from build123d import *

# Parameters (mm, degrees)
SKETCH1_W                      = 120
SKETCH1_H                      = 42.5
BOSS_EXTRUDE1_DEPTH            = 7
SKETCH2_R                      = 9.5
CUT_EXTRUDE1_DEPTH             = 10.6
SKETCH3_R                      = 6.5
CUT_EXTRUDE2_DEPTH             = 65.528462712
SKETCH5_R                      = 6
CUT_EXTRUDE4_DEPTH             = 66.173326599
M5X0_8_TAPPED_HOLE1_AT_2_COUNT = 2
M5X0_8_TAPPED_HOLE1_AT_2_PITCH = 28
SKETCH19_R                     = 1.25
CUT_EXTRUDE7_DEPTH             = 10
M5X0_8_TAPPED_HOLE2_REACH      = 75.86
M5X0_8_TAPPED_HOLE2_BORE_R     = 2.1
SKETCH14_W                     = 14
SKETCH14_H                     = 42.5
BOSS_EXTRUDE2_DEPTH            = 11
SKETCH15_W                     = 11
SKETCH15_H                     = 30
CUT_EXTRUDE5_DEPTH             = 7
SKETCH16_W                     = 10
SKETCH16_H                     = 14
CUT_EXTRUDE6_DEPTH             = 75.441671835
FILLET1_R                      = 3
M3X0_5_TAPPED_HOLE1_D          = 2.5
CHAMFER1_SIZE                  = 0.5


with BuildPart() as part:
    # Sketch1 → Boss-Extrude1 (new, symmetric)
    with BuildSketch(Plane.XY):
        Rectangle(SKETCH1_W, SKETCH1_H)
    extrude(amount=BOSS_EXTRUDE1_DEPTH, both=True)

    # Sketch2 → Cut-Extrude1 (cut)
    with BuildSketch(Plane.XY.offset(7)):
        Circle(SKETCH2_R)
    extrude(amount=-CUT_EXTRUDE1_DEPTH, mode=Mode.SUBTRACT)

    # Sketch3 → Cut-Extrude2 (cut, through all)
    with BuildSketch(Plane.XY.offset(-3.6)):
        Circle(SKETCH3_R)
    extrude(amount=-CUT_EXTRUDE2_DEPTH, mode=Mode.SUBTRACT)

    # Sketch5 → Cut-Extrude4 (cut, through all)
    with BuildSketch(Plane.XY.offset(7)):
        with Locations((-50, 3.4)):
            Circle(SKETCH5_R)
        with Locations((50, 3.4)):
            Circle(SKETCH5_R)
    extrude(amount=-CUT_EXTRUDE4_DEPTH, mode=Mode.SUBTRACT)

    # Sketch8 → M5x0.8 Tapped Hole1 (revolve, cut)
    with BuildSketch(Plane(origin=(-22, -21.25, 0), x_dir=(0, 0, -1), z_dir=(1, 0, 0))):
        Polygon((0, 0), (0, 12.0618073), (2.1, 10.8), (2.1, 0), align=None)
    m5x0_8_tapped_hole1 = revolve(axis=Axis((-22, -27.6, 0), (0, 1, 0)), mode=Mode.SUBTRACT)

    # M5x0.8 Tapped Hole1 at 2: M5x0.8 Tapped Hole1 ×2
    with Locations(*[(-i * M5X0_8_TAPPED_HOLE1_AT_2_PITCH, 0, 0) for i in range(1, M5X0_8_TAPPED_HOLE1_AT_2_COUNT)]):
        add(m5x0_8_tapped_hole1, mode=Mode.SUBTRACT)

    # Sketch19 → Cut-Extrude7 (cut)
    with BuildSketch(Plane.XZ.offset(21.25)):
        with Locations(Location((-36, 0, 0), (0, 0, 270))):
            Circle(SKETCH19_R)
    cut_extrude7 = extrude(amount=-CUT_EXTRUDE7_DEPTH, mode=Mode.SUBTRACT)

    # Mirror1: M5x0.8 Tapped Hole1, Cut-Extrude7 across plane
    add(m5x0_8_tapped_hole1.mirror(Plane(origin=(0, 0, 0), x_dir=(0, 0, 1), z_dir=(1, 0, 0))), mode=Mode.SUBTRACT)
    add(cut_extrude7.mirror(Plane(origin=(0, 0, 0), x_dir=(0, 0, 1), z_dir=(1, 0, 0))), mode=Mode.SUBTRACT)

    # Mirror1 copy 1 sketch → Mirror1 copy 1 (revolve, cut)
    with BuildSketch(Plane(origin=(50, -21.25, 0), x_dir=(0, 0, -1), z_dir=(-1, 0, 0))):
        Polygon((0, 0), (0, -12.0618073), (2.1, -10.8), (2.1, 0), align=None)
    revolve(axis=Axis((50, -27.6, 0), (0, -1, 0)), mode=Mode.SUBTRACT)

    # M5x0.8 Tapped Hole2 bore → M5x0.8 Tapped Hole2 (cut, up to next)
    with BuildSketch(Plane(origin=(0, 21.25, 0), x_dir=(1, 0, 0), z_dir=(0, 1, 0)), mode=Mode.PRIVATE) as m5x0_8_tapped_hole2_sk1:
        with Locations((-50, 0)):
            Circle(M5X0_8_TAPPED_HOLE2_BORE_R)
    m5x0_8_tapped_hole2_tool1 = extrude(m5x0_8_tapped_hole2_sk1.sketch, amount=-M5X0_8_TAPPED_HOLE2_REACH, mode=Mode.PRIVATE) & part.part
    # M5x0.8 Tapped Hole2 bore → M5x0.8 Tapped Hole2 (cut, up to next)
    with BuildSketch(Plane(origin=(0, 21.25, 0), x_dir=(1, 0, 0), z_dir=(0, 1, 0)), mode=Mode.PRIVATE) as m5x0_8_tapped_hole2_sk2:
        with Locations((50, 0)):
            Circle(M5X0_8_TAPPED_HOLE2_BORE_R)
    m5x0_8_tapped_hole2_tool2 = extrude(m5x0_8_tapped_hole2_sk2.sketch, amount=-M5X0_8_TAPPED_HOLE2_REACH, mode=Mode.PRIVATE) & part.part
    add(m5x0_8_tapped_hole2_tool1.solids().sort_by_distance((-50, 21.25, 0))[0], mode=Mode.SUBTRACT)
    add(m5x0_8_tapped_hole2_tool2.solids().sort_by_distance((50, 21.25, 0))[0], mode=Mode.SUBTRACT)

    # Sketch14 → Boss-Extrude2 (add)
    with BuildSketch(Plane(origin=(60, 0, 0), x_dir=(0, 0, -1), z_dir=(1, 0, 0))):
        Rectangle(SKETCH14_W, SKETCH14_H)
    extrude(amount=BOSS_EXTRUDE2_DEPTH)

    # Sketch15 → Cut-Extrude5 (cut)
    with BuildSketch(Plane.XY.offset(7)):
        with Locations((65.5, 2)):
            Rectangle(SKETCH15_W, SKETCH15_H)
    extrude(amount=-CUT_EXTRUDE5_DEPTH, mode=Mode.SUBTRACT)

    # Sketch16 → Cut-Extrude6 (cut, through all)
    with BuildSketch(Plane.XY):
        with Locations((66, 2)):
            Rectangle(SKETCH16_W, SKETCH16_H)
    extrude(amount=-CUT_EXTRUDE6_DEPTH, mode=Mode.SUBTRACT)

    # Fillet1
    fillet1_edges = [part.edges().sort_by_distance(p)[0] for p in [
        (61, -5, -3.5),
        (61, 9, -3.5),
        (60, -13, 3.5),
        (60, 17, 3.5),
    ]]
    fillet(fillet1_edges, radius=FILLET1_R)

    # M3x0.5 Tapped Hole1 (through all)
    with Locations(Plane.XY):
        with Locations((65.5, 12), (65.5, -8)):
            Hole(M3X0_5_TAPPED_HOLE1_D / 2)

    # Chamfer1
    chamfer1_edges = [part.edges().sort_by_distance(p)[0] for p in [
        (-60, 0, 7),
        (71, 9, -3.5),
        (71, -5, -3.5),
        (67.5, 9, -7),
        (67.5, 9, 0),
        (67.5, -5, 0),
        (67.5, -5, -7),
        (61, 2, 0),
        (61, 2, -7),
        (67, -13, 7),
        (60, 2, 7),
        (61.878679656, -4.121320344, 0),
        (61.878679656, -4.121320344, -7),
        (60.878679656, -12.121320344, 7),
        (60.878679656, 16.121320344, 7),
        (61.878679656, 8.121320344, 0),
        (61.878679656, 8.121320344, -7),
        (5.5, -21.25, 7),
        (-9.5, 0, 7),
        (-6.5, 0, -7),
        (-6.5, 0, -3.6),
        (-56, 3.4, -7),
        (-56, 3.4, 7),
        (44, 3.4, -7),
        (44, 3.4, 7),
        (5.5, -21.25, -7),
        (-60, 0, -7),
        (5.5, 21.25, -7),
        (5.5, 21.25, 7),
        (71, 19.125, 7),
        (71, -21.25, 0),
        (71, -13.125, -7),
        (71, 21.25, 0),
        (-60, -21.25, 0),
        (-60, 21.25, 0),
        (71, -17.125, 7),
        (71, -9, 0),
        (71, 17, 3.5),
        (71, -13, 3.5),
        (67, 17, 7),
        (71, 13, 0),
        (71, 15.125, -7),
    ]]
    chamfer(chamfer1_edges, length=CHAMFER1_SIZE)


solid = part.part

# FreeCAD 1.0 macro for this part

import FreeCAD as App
import Part
import Sketcher
Q = App.Units.Quantity


def edges_at(feature, points):
    """Names of the edges that pass closest to the given points."""
    edges = feature.Shape.Edges
    near = lambda p: min(range(len(edges)), key=lambda i: edges[i].distToShape(Part.Vertex(*p))[0])
    return sorted({f"Edge{near(p) + 1}" for p in points})

doc = App.newDocument("Part")
body = doc.addObject("PartDesign::Body", "Body")

# Sketch on XY plane
sketch1 = body.newObject("Sketcher::SketchObject", "Sketch")
sketch1.AttachmentSupport = (doc.getObject("XY_Plane"), [""])
sketch1.MapMode = "FlatFace"
sketch1.addGeometry(Part.LineSegment(App.Vector(-60, 21, 0), App.Vector(-60, -21, 0)), False)
sketch1.addGeometry(Part.LineSegment(App.Vector(-60, -21, 0), App.Vector(60, -21, 0)), False)
sketch1.addGeometry(Part.LineSegment(App.Vector(60, -21, 0), App.Vector(60, 21, 0)), False)
sketch1.addGeometry(Part.LineSegment(App.Vector(60, 21, 0), App.Vector(-60, 21, 0)), False)
sketch1.addConstraint(Sketcher.Constraint("Coincident", 0, 2, 1, 1))
sketch1.addConstraint(Sketcher.Constraint("Coincident", 1, 2, 2, 1))
sketch1.addConstraint(Sketcher.Constraint("Coincident", 2, 2, 3, 1))
sketch1.addConstraint(Sketcher.Constraint("Coincident", 3, 2, 0, 1))
sketch1.addConstraint(Sketcher.Constraint("Vertical", 0))
sketch1.addConstraint(Sketcher.Constraint("Horizontal", 1))
sketch1.addConstraint(Sketcher.Constraint("Vertical", 2))
sketch1.addConstraint(Sketcher.Constraint("Horizontal", 3))
sketch1.addConstraint(Sketcher.Constraint("Symmetric", 0, 2, 2, 2, -1, 1))
sketch1.addConstraint(Sketcher.Constraint("DistanceX", 1, 1, 1, 2, 120.0))
sketch1.addConstraint(Sketcher.Constraint("DistanceY", 0, 2, 0, 1, 42.5))
pad1 = body.newObject("PartDesign::Pad", "Pad")
pad1.Profile = sketch1
pad1.Length = 14
pad1.Midplane = True

# Sketch on XY plane
sketch2 = body.newObject("Sketcher::SketchObject", "Sketch001")
sketch2.AttachmentSupport = (doc.getObject("XY_Plane"), [""])
sketch2.MapMode = "FlatFace"
sketch2.AttachmentOffset = App.Placement(App.Vector(0, 0, 7), App.Rotation())
sketch2.addGeometry(Part.Circle(App.Vector(0, 0, 0), App.Vector(0, 0, 1), 10), False)
sketch2.addConstraint(Sketcher.Constraint("Coincident", 0, 3, -1, 1))
sketch2.addConstraint(Sketcher.Constraint("Diameter", 0, 19.0))
pocket1 = body.newObject("PartDesign::Pocket", "Pocket")
pocket1.Profile = sketch2
pocket1.Length = 10.6

# Sketch on XY plane
sketch3 = body.newObject("Sketcher::SketchObject", "Sketch002")
sketch3.AttachmentSupport = (doc.getObject("XY_Plane"), [""])
sketch3.MapMode = "FlatFace"
sketch3.AttachmentOffset = App.Placement(App.Vector(0, 0, -3.6), App.Rotation())
sketch3.addGeometry(Part.Circle(App.Vector(0, 0, 0), App.Vector(0, 0, 1), 6), False)
sketch3.addConstraint(Sketcher.Constraint("Coincident", 0, 3, -1, 1))
sketch3.addConstraint(Sketcher.Constraint("Diameter", 0, 13.0))
pocket2 = body.newObject("PartDesign::Pocket", "Pocket001")
pocket2.Profile = sketch3
pocket2.Type = "ThroughAll"

# Sketch on XY plane
sketch4 = body.newObject("Sketcher::SketchObject", "Sketch003")
sketch4.AttachmentSupport = (doc.getObject("XY_Plane"), [""])
sketch4.MapMode = "FlatFace"
sketch4.AttachmentOffset = App.Placement(App.Vector(0, 0, 7), App.Rotation())
sketch4.addGeometry(Part.Circle(App.Vector(-50, 3, 0), App.Vector(0, 0, 1), 6), False)
sketch4.addGeometry(Part.Circle(App.Vector(50, 3, 0), App.Vector(0, 0, 1), 6), False)
sketch4.addConstraint(Sketcher.Constraint("Equal", 0, 1))
sketch4.addConstraint(Sketcher.Constraint("Symmetric", 0, 3, 1, 3, -2))
sketch4.addConstraint(Sketcher.Constraint("Diameter", 0, 12.0))
sketch4.addConstraint(Sketcher.Constraint("DistanceX", 0, 3, -1, 1, 50.0))
sketch4.addConstraint(Sketcher.Constraint("DistanceY", -1, 1, 0, 3, 3.4))
pocket3 = body.newObject("PartDesign::Pocket", "Pocket002")
pocket3.Profile = sketch4
pocket3.Type = "ThroughAll"

# Sketch on YZ plane
sketch5 = body.newObject("Sketcher::SketchObject", "Sketch004")
sketch5.AttachmentSupport = (doc.getObject("YZ_Plane"), [""])
sketch5.MapMode = "FlatFace"
sketch5.AttachmentOffset = App.Placement(App.Vector(0, 0, -22), App.Rotation())
sketch5.addGeometry(Part.LineSegment(App.Vector(-9.2, 0, 0), App.Vector(-21.2, 0, 0)), False)
sketch5.addGeometry(Part.LineSegment(App.Vector(-21.2, 0, 0), App.Vector(-21.2, -2.1, 0)), False)
sketch5.addGeometry(Part.LineSegment(App.Vector(-21.2, -2.1, 0), App.Vector(-10.4, -2.1, 0)), False)
sketch5.addGeometry(Part.LineSegment(App.Vector(-10.4, -2.1, 0), App.Vector(-9.2, 0, 0)), False)
sketch5.addConstraint(Sketcher.Constraint("Coincident", 0, 2, 1, 1))
sketch5.addConstraint(Sketcher.Constraint("Coincident", 1, 2, 2, 1))
sketch5.addConstraint(Sketcher.Constraint("Coincident", 2, 2, 3, 1))
sketch5.addConstraint(Sketcher.Constraint("Coincident", 3, 2, 0, 1))
sketch5.addConstraint(Sketcher.Constraint("Horizontal", 0))
sketch5.addConstraint(Sketcher.Constraint("Vertical", 1))
sketch5.addConstraint(Sketcher.Constraint("Horizontal", 2))
sketch5.addConstraint(Sketcher.Constraint("PointOnObject", 0, 2, -1))
sketch5.addConstraint(Sketcher.Constraint("Angle", 3, Q("59 deg")))
sketch5.addConstraint(Sketcher.Constraint("DistanceX", 2, 1, 2, 2, 10.8))
sketch5.addConstraint(Sketcher.Constraint("DistanceY", 1, 2, 1, 1, 2.1))
sketch5.addConstraint(Sketcher.Constraint("DistanceX", 0, 2, -1, 1, 21.25))
groove = body.newObject("PartDesign::Groove", "Groove")
groove.Profile = sketch5
groove.ReferenceAxis = (sketch5, ["H_Axis"])
groove.Angle = 360
doc.recompute()

linearpattern = body.newObject("PartDesign::LinearPattern", "LinearPattern")
linearpattern.Originals = [groove]
linearpattern.Direction = (doc.getObject("X_Axis"), [""])
linearpattern.Mode = "offset"
linearpattern.Offset = 28
linearpattern.Occurrences = 2
linearpattern.Reversed = True
body.Tip = linearpattern

# Sketch on XZ plane
sketch6 = body.newObject("Sketcher::SketchObject", "Sketch005")
sketch6.AttachmentSupport = (doc.getObject("XZ_Plane"), [""])
sketch6.MapMode = "FlatFace"
sketch6.AttachmentOffset = App.Placement(App.Vector(0, 0, 21.25), App.Rotation())
sketch6.addGeometry(Part.Circle(App.Vector(-36, 0, 0), App.Vector(0, 0, 1), 1.2), False)
sketch6.addConstraint(Sketcher.Constraint("PointOnObject", 0, 3, -1))
sketch6.addConstraint(Sketcher.Constraint("Diameter", 0, 2.5))
sketch6.addConstraint(Sketcher.Constraint("DistanceX", 0, 3, -1, 1, 36.0))
pocket4 = body.newObject("PartDesign::Pocket", "Pocket003")
pocket4.Profile = sketch6
pocket4.Length = 10
doc.recompute()

mirrored = body.newObject("PartDesign::Mirrored", "Mirrored")
mirrored.Originals = [groove, pocket4]
mirrored.MirrorPlane = (doc.getObject("YZ_Plane"), [""])
body.Tip = mirrored

# Sketch on YZ plane
sketch7 = body.newObject("Sketcher::SketchObject", "Sketch006")
sketch7.AttachmentSupport = (doc.getObject("YZ_Plane"), [""])
sketch7.MapMode = "FlatFace"
sketch7.AttachmentOffset = App.Placement(App.Vector(0, 0, 50), App.Rotation())
sketch7.addGeometry(Part.LineSegment(App.Vector(-21.2, 0, 0), App.Vector(-9.2, 0, 0)), False)
sketch7.addGeometry(Part.LineSegment(App.Vector(-9.2, 0, 0), App.Vector(-10.4, -2.1, 0)), False)
sketch7.addGeometry(Part.LineSegment(App.Vector(-10.4, -2.1, 0), App.Vector(-21.2, -2.1, 0)), False)
sketch7.addGeometry(Part.LineSegment(App.Vector(-21.2, -2.1, 0), App.Vector(-21.2, 0, 0)), False)
sketch7.addConstraint(Sketcher.Constraint("Coincident", 0, 2, 1, 1))
sketch7.addConstraint(Sketcher.Constraint("Coincident", 1, 2, 2, 1))
sketch7.addConstraint(Sketcher.Constraint("Coincident", 2, 2, 3, 1))
sketch7.addConstraint(Sketcher.Constraint("Coincident", 3, 2, 0, 1))
sketch7.addConstraint(Sketcher.Constraint("Horizontal", 0))
sketch7.addConstraint(Sketcher.Constraint("Horizontal", 2))
sketch7.addConstraint(Sketcher.Constraint("Vertical", 3))
sketch7.addConstraint(Sketcher.Constraint("PointOnObject", 0, 2, -1))
sketch7.addConstraint(Sketcher.Constraint("Angle", 1, Q("-121 deg")))
sketch7.addConstraint(Sketcher.Constraint("DistanceX", 2, 2, 2, 1, 10.8))
sketch7.addConstraint(Sketcher.Constraint("DistanceY", 3, 1, 3, 2, 2.1))
sketch7.addConstraint(Sketcher.Constraint("DistanceX", 1, 2, -1, 1, 10.45))
groove2 = body.newObject("PartDesign::Groove", "Groove001")
groove2.Profile = sketch7
groove2.ReferenceAxis = (sketch7, ["H_Axis"])
groove2.Angle = 360

# Sketch on XZ plane
sketch8 = body.newObject("Sketcher::SketchObject", "Sketch007")
sketch8.AttachmentSupport = (doc.getObject("XZ_Plane"), [""])
sketch8.MapMode = "FlatFace"
sketch8.AttachmentOffset = App.Placement(App.Vector(0, 0, -21.25), App.Rotation())
sketch8.addGeometry(Part.Circle(App.Vector(-50, 0, 0), App.Vector(0, 0, 1), 2.1), False)
sketch8.addConstraint(Sketcher.Constraint("PointOnObject", 0, 3, -1))
sketch8.addConstraint(Sketcher.Constraint("Diameter", 0, 4.2))
sketch8.addConstraint(Sketcher.Constraint("DistanceX", 0, 3, -1, 1, 50.0))
pocket5 = body.newObject("PartDesign::Pocket", "Pocket004")
pocket5.Profile = sketch8
pocket5.Type = "UpToFirst"
pocket5.Reversed = True

# Sketch on XZ plane
sketch9 = body.newObject("Sketcher::SketchObject", "Sketch008")
sketch9.AttachmentSupport = (doc.getObject("XZ_Plane"), [""])
sketch9.MapMode = "FlatFace"
sketch9.AttachmentOffset = App.Placement(App.Vector(0, 0, -21.25), App.Rotation())
sketch9.addGeometry(Part.Circle(App.Vector(50, 0, 0), App.Vector(0, 0, 1), 2.1), False)
sketch9.addConstraint(Sketcher.Constraint("PointOnObject", 0, 3, -1))
sketch9.addConstraint(Sketcher.Constraint("Diameter", 0, 4.2))
sketch9.addConstraint(Sketcher.Constraint("DistanceX", -1, 1, 0, 3, 50.0))
pocket6 = body.newObject("PartDesign::Pocket", "Pocket005")
pocket6.Profile = sketch9
pocket6.Type = "UpToFirst"
pocket6.Reversed = True

# Sketch on YZ plane
sketch10 = body.newObject("Sketcher::SketchObject", "Sketch009")
sketch10.AttachmentSupport = (doc.getObject("YZ_Plane"), [""])
sketch10.MapMode = "FlatFace"
sketch10.AttachmentOffset = App.Placement(App.Vector(0, 0, 60), App.Rotation())
sketch10.addGeometry(Part.LineSegment(App.Vector(21, 7, 0), App.Vector(-21, 7, 0)), False)
sketch10.addGeometry(Part.LineSegment(App.Vector(-21, 7, 0), App.Vector(-21, -7, 0)), False)
sketch10.addGeometry(Part.LineSegment(App.Vector(-21, -7, 0), App.Vector(21, -7, 0)), False)
sketch10.addGeometry(Part.LineSegment(App.Vector(21, -7, 0), App.Vector(21, 7, 0)), False)
sketch10.addConstraint(Sketcher.Constraint("Coincident", 0, 2, 1, 1))
sketch10.addConstraint(Sketcher.Constraint("Coincident", 1, 2, 2, 1))
sketch10.addConstraint(Sketcher.Constraint("Coincident", 2, 2, 3, 1))
sketch10.addConstraint(Sketcher.Constraint("Coincident", 3, 2, 0, 1))
sketch10.addConstraint(Sketcher.Constraint("Horizontal", 0))
sketch10.addConstraint(Sketcher.Constraint("Vertical", 1))
sketch10.addConstraint(Sketcher.Constraint("Horizontal", 2))
sketch10.addConstraint(Sketcher.Constraint("Vertical", 3))
sketch10.addConstraint(Sketcher.Constraint("Symmetric", 0, 2, 2, 2, -1, 1))
sketch10.addConstraint(Sketcher.Constraint("DistanceY", 1, 2, 1, 1, 14.0))
sketch10.addConstraint(Sketcher.Constraint("DistanceX", 0, 2, 0, 1, 42.5))
pad2 = body.newObject("PartDesign::Pad", "Pad001")
pad2.Profile = sketch10
pad2.Length = 11

# Sketch on XY plane
sketch11 = body.newObject("Sketcher::SketchObject", "Sketch010")
sketch11.AttachmentSupport = (doc.getObject("XY_Plane"), [""])
sketch11.MapMode = "FlatFace"
sketch11.AttachmentOffset = App.Placement(App.Vector(0, 0, 7), App.Rotation())
sketch11.addGeometry(Part.LineSegment(App.Vector(60, 17, 0), App.Vector(60, -13, 0)), False)
sketch11.addGeometry(Part.LineSegment(App.Vector(60, -13, 0), App.Vector(71, -13, 0)), False)
sketch11.addGeometry(Part.LineSegment(App.Vector(71, -13, 0), App.Vector(71, 17, 0)), False)
sketch11.addGeometry(Part.LineSegment(App.Vector(71, 17, 0), App.Vector(60, 17, 0)), False)
sketch11.addConstraint(Sketcher.Constraint("Coincident", 0, 2, 1, 1))
sketch11.addConstraint(Sketcher.Constraint("Coincident", 1, 2, 2, 1))
sketch11.addConstraint(Sketcher.Constraint("Coincident", 2, 2, 3, 1))
sketch11.addConstraint(Sketcher.Constraint("Coincident", 3, 2, 0, 1))
sketch11.addConstraint(Sketcher.Constraint("Vertical", 0))
sketch11.addConstraint(Sketcher.Constraint("Horizontal", 1))
sketch11.addConstraint(Sketcher.Constraint("Vertical", 2))
sketch11.addConstraint(Sketcher.Constraint("Horizontal", 3))
sketch11.addConstraint(Sketcher.Constraint("DistanceX", 1, 1, 1, 2, 11.0))
sketch11.addConstraint(Sketcher.Constraint("DistanceY", 0, 2, 0, 1, 30.0))
sketch11.addConstraint(Sketcher.Constraint("DistanceX", -1, 1, 0, 2, 60.0))
sketch11.addConstraint(Sketcher.Constraint("DistanceY", 0, 2, -1, 1, 13.0))
pocket7 = body.newObject("PartDesign::Pocket", "Pocket006")
pocket7.Profile = sketch11
pocket7.Length = 7

# Sketch on XY plane
sketch12 = body.newObject("Sketcher::SketchObject", "Sketch011")
sketch12.AttachmentSupport = (doc.getObject("XY_Plane"), [""])
sketch12.MapMode = "FlatFace"
sketch12.addGeometry(Part.LineSegment(App.Vector(61, 9, 0), App.Vector(61, -5, 0)), False)
sketch12.addGeometry(Part.LineSegment(App.Vector(61, -5, 0), App.Vector(71, -5, 0)), False)
sketch12.addGeometry(Part.LineSegment(App.Vector(71, -5, 0), App.Vector(71, 9, 0)), False)
sketch12.addGeometry(Part.LineSegment(App.Vector(71, 9, 0), App.Vector(61, 9, 0)), False)
sketch12.addConstraint(Sketcher.Constraint("Coincident", 0, 2, 1, 1))
sketch12.addConstraint(Sketcher.Constraint("Coincident", 1, 2, 2, 1))
sketch12.addConstraint(Sketcher.Constraint("Coincident", 2, 2, 3, 1))
sketch12.addConstraint(Sketcher.Constraint("Coincident", 3, 2, 0, 1))
sketch12.addConstraint(Sketcher.Constraint("Vertical", 0))
sketch12.addConstraint(Sketcher.Constraint("Horizontal", 1))
sketch12.addConstraint(Sketcher.Constraint("Vertical", 2))
sketch12.addConstraint(Sketcher.Constraint("Horizontal", 3))
sketch12.addConstraint(Sketcher.Constraint("DistanceX", 1, 1, 1, 2, 10.0))
sketch12.addConstraint(Sketcher.Constraint("DistanceY", 0, 2, 0, 1, 14.0))
sketch12.addConstraint(Sketcher.Constraint("DistanceX", -1, 1, 0, 2, 61.0))
sketch12.addConstraint(Sketcher.Constraint("DistanceY", 0, 2, -1, 1, 5.0))
pocket8 = body.newObject("PartDesign::Pocket", "Pocket007")
pocket8.Profile = sketch12
pocket8.Type = "ThroughAll"
doc.recompute()

fillet = body.newObject("PartDesign::Fillet", "Fillet")
fillet.Base = (pocket8, edges_at(pocket8, [
    (61, -5, -3.5),
    (61, 9, -3.5),
    (60, -13, 3.5),
    (60, 17, 3.5),
]))
fillet.Radius = 3

# Sketch on XY plane
sketch13 = body.newObject("Sketcher::SketchObject", "Sketch012")
sketch13.AttachmentSupport = (doc.getObject("XY_Plane"), [""])
sketch13.MapMode = "FlatFace"
sketch13.addGeometry(Part.Circle(App.Vector(65.5, 12, 0), App.Vector(0, 0, 1), 1.2), False)
sketch13.addGeometry(Part.Circle(App.Vector(65.5, -8, 0), App.Vector(0, 0, 1), 1.2), False)
sketch13.addConstraint(Sketcher.Constraint("Equal", 0, 1))
sketch13.addConstraint(Sketcher.Constraint("Vertical", 0, 3, 1, 3))
sketch13.addConstraint(Sketcher.Constraint("Diameter", 0, 2.5))
sketch13.addConstraint(Sketcher.Constraint("DistanceY", -1, 1, 0, 3, 12.0))
sketch13.addConstraint(Sketcher.Constraint("DistanceY", 1, 3, -1, 1, 8.0))
sketch13.addConstraint(Sketcher.Constraint("DistanceX", -1, 1, 0, 3, 65.5))
doc.recompute()
hole = body.newObject("PartDesign::Hole", "Hole")
hole.Profile = sketch13
hole.ThreadType = "None"
hole.Diameter = 2.5
hole.DepthType = "ThroughAll"
doc.recompute()

chamfer = body.newObject("PartDesign::Chamfer", "Chamfer")
chamfer.Base = (hole, edges_at(hole, [
    (-60, 0, 7),
    (71, 9, -3.5),
    (71, -5, -3.5),
    (67.5, 9, -7),
    (67.5, 9, 0),
    (67.5, -5, 0),
    (67.5, -5, -7),
    (61, 2, 0),
    (61, 2, -7),
    (67, -13, 7),
    (60, 2, 7),
    (61.879, -4.121, 0),
    (61.879, -4.121, -7),
    (60.879, -12.121, 7),
    (60.879, 16.121, 7),
    (61.879, 8.121, 0),
    (61.879, 8.121, -7),
    (5.5, -21.25, 7),
    (-9.5, 0, 7),
    (-6.5, 0, -7),
    (-6.5, 0, -3.6),
    (-56, 3.4, -7),
    (-56, 3.4, 7),
    (44, 3.4, -7),
    (44, 3.4, 7),
    (5.5, -21.25, -7),
    (-60, 0, -7),
    (5.5, 21.25, -7),
    (5.5, 21.25, 7),
    (71, 19.125, 7),
    (71, -21.25, 0),
    (71, -13.125, -7),
    (71, 21.25, 0),
    (-60, -21.25, 0),
    (-60, 21.25, 0),
    (71, -17.125, 7),
    (71, -9, 0),
    (71, 17, 3.5),
    (71, -13, 3.5),
    (67, 17, 7),
    (71, 13, 0),
    (71, 15.125, -7),
]))
chamfer.Size = 0.5

doc.recompute()
